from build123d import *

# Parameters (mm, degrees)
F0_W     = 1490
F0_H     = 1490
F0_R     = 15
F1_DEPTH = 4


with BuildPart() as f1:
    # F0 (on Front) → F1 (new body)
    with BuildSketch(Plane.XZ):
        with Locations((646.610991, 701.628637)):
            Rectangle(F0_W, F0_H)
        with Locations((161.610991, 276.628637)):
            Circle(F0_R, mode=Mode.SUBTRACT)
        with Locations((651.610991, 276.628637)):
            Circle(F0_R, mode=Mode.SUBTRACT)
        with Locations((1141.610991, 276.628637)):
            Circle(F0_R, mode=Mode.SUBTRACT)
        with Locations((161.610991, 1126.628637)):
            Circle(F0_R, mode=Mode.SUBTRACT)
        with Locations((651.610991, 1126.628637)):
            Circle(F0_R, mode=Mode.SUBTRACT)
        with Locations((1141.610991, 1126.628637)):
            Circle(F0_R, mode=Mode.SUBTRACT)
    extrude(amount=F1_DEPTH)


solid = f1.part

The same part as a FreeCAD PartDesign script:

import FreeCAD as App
import Part
import Sketcher

V = App.Vector
Q = App.Units.Quantity

doc = App.newDocument("Part")
body = doc.addObject("PartDesign::Body", "Body")

sketch1 = body.newObject("Sketcher::SketchObject", "Sketch")
sketch1.AttachmentSupport = (doc.getObject("XZ_Plane"), [""])
sketch1.MapMode = "FlatFace"
sketch1.addGeometry(Part.LineSegment(V(-98.389009, 1446.628637, 0), V(-98.389009, -43.371363, 0)), False)
sketch1.addGeometry(Part.LineSegment(V(-98.389009, -43.371363, 0), V(1391.610991, -43.371363, 0)), False)
sketch1.addGeometry(Part.LineSegment(V(1391.610991, -43.371363, 0), V(1391.610991, 1446.628637, 0)), False)
sketch1.addGeometry(Part.LineSegment(V(1391.610991, 1446.628637, 0), V(-98.389009, 1446.628637, 0)), False)
sketch1.addGeometry(Part.Circle(V(161.610991, 276.628637, 0), V(0, 0, 1), 15), False)
sketch1.addGeometry(Part.Circle(V(651.610991, 276.628637, 0), V(0, 0, 1), 15), False)
sketch1.addGeometry(Part.Circle(V(1141.610991, 276.628637, 0), V(0, 0, 1), 15), False)
sketch1.addGeometry(Part.Circle(V(161.610991, 1126.628637, 0), V(0, 0, 1), 15), False)
sketch1.addGeometry(Part.Circle(V(651.610991, 1126.628637, 0), V(0, 0, 1), 15), False)
sketch1.addGeometry(Part.Circle(V(1141.610991, 1126.628637, 0), V(0, 0, 1), 15), False)
sketch1.addConstraint(Sketcher.Constraint("Coincident", 0, 2, 1, 1))
sketch1.addConstraint(Sketcher.Constraint("Coincident", 1, 2, 2, 1))
sketch1.addConstraint(Sketcher.Constraint("Coincident", 2, 2, 3, 1))
sketch1.addConstraint(Sketcher.Constraint("Coincident", 3, 2, 0, 1))
sketch1.addConstraint(Sketcher.Constraint("Vertical", 0))
sketch1.addConstraint(Sketcher.Constraint("Horizontal", 1))
sketch1.addConstraint(Sketcher.Constraint("Vertical", 2))
sketch1.addConstraint(Sketcher.Constraint("Horizontal", 3))
sketch1.addConstraint(Sketcher.Constraint("Equal", 4, 5))
sketch1.addConstraint(Sketcher.Constraint("Equal", 5, 6))
sketch1.addConstraint(Sketcher.Constraint("Equal", 6, 7))
sketch1.addConstraint(Sketcher.Constraint("Equal", 7, 8))
sketch1.addConstraint(Sketcher.Constraint("Equal", 8, 9))
sketch1.addConstraint(Sketcher.Constraint("Horizontal", 4, 3, 5, 3))
sketch1.addConstraint(Sketcher.Constraint("Horizontal", 5, 3, 6, 3))
sketch1.addConstraint(Sketcher.Constraint("Horizontal", 7, 3, 8, 3))
sketch1.addConstraint(Sketcher.Constraint("Horizontal", 8, 3, 9, 3))
sketch1.addConstraint(Sketcher.Constraint("Vertical", 4, 3, 7, 3))
sketch1.addConstraint(Sketcher.Constraint("Vertical", 5, 3, 8, 3))
sketch1.addConstraint(Sketcher.Constraint("Vertical", 6, 3, 9, 3))
sketch1.addConstraint(Sketcher.Constraint("Equal", 3, 0))
sketch1.addConstraint(Sketcher.Constraint("Diameter", 4, Q("30 mm")))
sketch1.addConstraint(Sketcher.Constraint("DistanceX", 1, 1, 1, 2, Q("1490 mm")))
sketch1.addConstraint(Sketcher.Constraint("DistanceX", 4, 3, 5, 3, Q("490 mm")))
sketch1.addConstraint(Sketcher.Constraint("DistanceX", 5, 3, 6, 3, Q("490 mm")))
sketch1.addConstraint(Sketcher.Constraint("DistanceY", 4, 3, 7, 3, Q("850 mm")))
sketch1.addConstraint(Sketcher.Constraint("DistanceX", 0, 2, 4, 3, Q("260 mm")))
sketch1.addConstraint(Sketcher.Constraint("DistanceY", 0, 2, 4, 3, Q("320 mm")))
sketch1.addConstraint(Sketcher.Constraint("DistanceX", -1, 1, 4, 3, Q("161.610991 mm")))
sketch1.addConstraint(Sketcher.Constraint("DistanceY", -1, 1, 4, 3, Q("276.628637 mm")))
pad1 = body.newObject("PartDesign::Pad", "Pad")
pad1.Profile = sketch1
pad1.Length = 4

doc.recompute()
